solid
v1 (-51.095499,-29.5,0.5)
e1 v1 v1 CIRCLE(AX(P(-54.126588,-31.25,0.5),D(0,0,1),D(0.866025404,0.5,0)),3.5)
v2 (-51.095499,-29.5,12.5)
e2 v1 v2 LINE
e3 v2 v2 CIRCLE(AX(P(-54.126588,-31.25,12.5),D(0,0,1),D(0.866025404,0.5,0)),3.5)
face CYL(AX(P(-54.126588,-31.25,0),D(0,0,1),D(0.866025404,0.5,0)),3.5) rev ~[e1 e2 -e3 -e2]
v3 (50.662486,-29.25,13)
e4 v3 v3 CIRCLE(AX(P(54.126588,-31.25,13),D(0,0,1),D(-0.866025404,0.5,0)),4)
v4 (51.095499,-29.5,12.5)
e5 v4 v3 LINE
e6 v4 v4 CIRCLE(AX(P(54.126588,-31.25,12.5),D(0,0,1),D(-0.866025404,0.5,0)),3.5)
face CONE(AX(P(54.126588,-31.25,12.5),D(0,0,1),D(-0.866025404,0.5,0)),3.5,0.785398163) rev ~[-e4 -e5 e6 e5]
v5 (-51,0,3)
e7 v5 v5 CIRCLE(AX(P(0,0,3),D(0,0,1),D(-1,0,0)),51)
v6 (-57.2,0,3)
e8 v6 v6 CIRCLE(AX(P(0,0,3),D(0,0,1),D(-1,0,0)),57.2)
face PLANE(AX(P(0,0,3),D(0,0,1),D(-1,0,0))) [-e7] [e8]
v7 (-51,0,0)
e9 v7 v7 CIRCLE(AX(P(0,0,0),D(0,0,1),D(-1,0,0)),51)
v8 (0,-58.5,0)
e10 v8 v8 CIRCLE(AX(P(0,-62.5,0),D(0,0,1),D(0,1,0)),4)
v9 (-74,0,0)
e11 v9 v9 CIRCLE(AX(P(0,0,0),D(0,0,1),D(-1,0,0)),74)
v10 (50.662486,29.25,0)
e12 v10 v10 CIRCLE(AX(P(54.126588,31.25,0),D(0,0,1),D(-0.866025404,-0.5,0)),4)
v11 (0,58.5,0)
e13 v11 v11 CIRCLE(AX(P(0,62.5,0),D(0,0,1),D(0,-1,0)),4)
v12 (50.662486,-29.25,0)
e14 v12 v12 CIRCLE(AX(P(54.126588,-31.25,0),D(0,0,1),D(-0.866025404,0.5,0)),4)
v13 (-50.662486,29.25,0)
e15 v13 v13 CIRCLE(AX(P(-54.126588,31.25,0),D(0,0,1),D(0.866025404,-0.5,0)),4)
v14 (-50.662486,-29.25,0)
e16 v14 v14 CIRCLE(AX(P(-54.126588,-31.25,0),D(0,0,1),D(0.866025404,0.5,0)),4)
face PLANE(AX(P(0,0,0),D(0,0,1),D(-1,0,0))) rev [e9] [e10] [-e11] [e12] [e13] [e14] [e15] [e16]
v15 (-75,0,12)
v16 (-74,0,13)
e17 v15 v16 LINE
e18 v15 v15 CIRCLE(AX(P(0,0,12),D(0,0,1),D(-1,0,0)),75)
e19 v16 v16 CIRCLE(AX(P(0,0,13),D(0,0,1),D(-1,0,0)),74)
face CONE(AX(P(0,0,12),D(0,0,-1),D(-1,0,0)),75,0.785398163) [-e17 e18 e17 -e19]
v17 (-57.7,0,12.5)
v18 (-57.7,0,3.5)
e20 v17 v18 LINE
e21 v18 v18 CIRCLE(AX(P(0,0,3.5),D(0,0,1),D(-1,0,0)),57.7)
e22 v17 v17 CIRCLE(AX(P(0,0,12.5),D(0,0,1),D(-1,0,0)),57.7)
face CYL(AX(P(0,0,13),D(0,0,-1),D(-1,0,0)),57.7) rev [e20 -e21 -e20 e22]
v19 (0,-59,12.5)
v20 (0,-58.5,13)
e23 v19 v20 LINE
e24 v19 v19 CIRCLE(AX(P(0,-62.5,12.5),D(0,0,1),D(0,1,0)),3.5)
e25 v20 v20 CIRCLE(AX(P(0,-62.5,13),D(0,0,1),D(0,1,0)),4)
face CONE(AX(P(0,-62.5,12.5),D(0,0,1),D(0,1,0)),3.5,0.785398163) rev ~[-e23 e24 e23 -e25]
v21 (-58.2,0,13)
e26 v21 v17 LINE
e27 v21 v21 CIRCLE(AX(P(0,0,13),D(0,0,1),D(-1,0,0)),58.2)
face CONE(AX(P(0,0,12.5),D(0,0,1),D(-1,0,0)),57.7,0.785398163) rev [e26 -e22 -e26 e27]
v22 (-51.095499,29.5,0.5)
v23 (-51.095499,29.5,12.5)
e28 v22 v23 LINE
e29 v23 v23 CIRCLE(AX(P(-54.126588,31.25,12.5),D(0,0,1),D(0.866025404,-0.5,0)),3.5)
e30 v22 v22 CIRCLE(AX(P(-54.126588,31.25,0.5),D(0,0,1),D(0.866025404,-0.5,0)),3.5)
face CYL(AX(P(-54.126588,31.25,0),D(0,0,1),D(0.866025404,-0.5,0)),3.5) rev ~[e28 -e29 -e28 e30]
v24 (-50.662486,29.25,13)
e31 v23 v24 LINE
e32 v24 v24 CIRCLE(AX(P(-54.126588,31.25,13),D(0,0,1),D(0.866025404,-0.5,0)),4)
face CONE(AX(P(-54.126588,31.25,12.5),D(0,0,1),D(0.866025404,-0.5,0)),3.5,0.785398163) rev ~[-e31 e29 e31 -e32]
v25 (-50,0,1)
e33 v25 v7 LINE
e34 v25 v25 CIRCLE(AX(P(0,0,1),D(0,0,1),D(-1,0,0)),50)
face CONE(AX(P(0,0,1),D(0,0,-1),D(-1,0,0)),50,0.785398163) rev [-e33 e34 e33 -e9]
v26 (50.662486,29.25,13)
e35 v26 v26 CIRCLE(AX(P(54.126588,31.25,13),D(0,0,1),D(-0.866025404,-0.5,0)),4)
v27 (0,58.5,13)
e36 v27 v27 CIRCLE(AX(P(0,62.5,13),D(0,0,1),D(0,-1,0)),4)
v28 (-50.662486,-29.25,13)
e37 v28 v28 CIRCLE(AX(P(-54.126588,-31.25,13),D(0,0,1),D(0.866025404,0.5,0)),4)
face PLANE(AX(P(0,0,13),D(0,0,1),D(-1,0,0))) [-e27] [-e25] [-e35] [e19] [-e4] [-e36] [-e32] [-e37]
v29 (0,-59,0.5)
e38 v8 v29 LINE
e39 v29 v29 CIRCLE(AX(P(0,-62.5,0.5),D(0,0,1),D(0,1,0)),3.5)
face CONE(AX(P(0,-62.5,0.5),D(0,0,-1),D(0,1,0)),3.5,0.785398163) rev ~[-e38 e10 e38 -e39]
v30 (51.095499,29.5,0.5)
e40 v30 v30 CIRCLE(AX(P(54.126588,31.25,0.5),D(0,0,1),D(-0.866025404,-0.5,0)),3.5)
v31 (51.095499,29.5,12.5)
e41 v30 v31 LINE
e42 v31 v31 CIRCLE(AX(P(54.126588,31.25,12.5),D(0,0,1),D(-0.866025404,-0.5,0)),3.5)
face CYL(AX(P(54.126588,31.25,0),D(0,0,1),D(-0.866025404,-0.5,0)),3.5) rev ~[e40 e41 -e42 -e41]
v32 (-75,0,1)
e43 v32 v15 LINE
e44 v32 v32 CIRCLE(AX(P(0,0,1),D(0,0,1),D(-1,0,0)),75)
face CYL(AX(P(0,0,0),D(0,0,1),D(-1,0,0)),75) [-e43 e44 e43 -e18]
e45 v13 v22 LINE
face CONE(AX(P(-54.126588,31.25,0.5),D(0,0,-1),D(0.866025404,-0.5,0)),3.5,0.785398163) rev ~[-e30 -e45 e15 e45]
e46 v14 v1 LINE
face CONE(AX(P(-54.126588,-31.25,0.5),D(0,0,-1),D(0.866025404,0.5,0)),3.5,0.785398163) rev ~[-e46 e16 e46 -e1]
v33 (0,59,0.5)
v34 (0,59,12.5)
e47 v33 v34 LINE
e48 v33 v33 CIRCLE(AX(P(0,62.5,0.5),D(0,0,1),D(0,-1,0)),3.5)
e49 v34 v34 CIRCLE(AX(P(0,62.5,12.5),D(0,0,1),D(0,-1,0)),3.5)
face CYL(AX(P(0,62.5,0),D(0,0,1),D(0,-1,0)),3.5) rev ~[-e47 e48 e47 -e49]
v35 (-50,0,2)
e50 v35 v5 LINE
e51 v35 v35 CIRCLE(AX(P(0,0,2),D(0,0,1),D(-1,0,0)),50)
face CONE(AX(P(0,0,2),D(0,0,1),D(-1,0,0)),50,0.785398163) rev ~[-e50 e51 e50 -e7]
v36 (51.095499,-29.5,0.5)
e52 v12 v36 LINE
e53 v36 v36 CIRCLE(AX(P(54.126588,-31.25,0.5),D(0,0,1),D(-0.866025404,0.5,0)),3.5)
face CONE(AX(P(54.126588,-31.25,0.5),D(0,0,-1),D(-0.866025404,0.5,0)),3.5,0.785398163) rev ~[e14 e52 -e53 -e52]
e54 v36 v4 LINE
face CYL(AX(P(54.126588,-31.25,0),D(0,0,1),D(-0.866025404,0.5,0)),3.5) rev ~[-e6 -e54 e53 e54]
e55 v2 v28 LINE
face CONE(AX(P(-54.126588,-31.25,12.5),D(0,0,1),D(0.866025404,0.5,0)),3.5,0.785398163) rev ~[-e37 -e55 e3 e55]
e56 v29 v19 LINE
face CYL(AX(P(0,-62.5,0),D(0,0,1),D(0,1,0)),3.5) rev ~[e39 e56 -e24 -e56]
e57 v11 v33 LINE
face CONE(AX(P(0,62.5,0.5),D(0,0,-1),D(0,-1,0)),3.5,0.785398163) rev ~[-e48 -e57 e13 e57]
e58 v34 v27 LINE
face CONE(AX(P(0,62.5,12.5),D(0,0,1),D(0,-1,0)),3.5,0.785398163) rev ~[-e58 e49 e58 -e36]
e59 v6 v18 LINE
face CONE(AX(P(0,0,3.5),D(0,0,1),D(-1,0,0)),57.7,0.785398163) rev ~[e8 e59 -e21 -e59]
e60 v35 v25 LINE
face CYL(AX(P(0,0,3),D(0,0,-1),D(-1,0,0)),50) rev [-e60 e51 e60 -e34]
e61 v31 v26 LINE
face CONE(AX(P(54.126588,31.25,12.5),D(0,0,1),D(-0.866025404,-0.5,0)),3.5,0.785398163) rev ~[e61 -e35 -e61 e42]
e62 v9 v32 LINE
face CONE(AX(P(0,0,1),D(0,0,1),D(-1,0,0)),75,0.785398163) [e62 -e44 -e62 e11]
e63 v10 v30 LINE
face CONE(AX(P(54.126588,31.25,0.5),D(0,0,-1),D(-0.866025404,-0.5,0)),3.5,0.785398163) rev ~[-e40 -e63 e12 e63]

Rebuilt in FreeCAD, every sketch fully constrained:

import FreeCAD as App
import Part
import Sketcher
from FreeCAD import Vector


def edges_at(feature, points):
    """Names of the edges that pass closest to the given points."""
    edges = feature.Shape.Edges
    near = lambda p: min(range(len(edges)), key=lambda i: edges[i].distToShape(Part.Vertex(*p))[0])
    return sorted({f"Edge{near(p) + 1}" for p in points})

doc = App.newDocument("Part")
body = doc.addObject("PartDesign::Body", "Body")

# Sketch on XZ plane
sketch1 = body.newObject("Sketcher::SketchObject", "Sketch")
sketch1.AttachmentSupport = (doc.getObject("XZ_Plane"), [""])
sketch1.MapMode = "FlatFace"
sketch1.addGeometry([
    Part.LineSegment(Vector(-50, 3, 0), Vector(-50, 0, 0)),  # 0
    Part.LineSegment(Vector(-50, 0, 0), Vector(-75, 0, 0)),  # 1
    Part.LineSegment(Vector(-75, 0, 0), Vector(-75, 13, 0)),  # 2
    Part.LineSegment(Vector(-75, 13, 0), Vector(-57.7, 13, 0)),  # 3
    Part.LineSegment(Vector(-57.7, 13, 0), Vector(-57.7, 3, 0)),  # 4
    Part.LineSegment(Vector(-57.7, 3, 0), Vector(-50, 3, 0)),  # 5
], False)
sketch1.addConstraint([
    Sketcher.Constraint("Coincident", 0, 2, 1, 1),
    Sketcher.Constraint("Coincident", 1, 2, 2, 1),
    Sketcher.Constraint("Coincident", 2, 2, 3, 1),
    Sketcher.Constraint("Coincident", 3, 2, 4, 1),
    Sketcher.Constraint("Coincident", 4, 2, 5, 1),
    Sketcher.Constraint("Coincident", 5, 2, 0, 1),
    Sketcher.Constraint("Vertical", 0),
    Sketcher.Constraint("Horizontal", 1),
    Sketcher.Constraint("Vertical", 2),
    Sketcher.Constraint("Horizontal", 3),
    Sketcher.Constraint("Vertical", 4),
    Sketcher.Constraint("Horizontal", 5),
    Sketcher.Constraint("PointOnObject", 0, 2, -1),
    Sketcher.Constraint("DistanceY", 0, 2, 0, 1, 3.0),
    Sketcher.Constraint("DistanceY", 4, 2, 4, 1, 10.0),
    Sketcher.Constraint("DistanceX", 1, 2, 1, 1, 25.0),
    Sketcher.Constraint("DistanceX", 3, 1, 3, 2, 17.3),
    Sketcher.Constraint("DistanceX", 0, 2, -1, 1, 50.0),
])
revolution = body.newObject("PartDesign::Revolution", "Revolution")
revolution.Profile = sketch1
revolution.ReferenceAxis = (sketch1, ["V_Axis"])
revolution.Angle = 360

# Sketch on XY plane
sketch2 = body.newObject("Sketcher::SketchObject", "Sketch001")
sketch2.AttachmentSupport = (doc.getObject("XY_Plane"), [""])
sketch2.MapMode = "FlatFace"
sketch2.addGeometry(Part.Circle(Vector(0, -62.5, 0), Vector(0, 0, 1), 3.5), False)
sketch2.addConstraint([
    Sketcher.Constraint("PointOnObject", 0, 3, -2),
    Sketcher.Constraint("Diameter", 0, 7.0),
    Sketcher.Constraint("DistanceY", 0, 3, -1, 1, 62.5),
])
doc.recompute()
hole = body.newObject("PartDesign::Hole", "Hole")
hole.Profile = sketch2
hole.ThreadType = "None"
hole.Diameter = 7
hole.DepthType = "ThroughAll"
hole.Reversed = True
doc.recompute()

polarpattern = body.newObject("PartDesign::PolarPattern", "PolarPattern")
polarpattern.Originals = [hole]
polarpattern.Axis = (doc.getObject("Z_Axis"), [""])
polarpattern.Angle = 360
polarpattern.Occurrences = 6
body.Tip = polarpattern
doc.recompute()

chamfer = body.newObject("PartDesign::Chamfer", "Chamfer")
chamfer.Base = (polarpattern, edges_at(polarpattern, [
    (75, 0, 0),
    (50, 0, 0),
    (50, 0, 3),
    (75, 0, 13),
]))
chamfer.Size = 1
doc.recompute()

chamfer2 = body.newObject("PartDesign::Chamfer", "Chamfer001")
chamfer2.Base = (chamfer, edges_at(chamfer, [
    (57.158, 33, 0),
    (0, 66, 0),
    (-57.158, 33, 0),
    (-57.158, -33, 0),
    (0, -66, 0),
    (57.158, -33, 0),
    (57.158, 33, 13),
    (57.158, -33, 13),
    (0, -66, 13),
    (-57.158, -33, 13),
    (-57.158, 33, 13),
    (0, 66, 13),
]))
chamfer2.Size = 0.5
doc.recompute()

chamfer3 = body.newObject("PartDesign::Chamfer", "Chamfer002")
chamfer3.Base = (chamfer2, edges_at(chamfer2, [(57.7, 0, 13), (57.7, 0, 3)]))
chamfer3.Size = 0.5

doc.recompute()
